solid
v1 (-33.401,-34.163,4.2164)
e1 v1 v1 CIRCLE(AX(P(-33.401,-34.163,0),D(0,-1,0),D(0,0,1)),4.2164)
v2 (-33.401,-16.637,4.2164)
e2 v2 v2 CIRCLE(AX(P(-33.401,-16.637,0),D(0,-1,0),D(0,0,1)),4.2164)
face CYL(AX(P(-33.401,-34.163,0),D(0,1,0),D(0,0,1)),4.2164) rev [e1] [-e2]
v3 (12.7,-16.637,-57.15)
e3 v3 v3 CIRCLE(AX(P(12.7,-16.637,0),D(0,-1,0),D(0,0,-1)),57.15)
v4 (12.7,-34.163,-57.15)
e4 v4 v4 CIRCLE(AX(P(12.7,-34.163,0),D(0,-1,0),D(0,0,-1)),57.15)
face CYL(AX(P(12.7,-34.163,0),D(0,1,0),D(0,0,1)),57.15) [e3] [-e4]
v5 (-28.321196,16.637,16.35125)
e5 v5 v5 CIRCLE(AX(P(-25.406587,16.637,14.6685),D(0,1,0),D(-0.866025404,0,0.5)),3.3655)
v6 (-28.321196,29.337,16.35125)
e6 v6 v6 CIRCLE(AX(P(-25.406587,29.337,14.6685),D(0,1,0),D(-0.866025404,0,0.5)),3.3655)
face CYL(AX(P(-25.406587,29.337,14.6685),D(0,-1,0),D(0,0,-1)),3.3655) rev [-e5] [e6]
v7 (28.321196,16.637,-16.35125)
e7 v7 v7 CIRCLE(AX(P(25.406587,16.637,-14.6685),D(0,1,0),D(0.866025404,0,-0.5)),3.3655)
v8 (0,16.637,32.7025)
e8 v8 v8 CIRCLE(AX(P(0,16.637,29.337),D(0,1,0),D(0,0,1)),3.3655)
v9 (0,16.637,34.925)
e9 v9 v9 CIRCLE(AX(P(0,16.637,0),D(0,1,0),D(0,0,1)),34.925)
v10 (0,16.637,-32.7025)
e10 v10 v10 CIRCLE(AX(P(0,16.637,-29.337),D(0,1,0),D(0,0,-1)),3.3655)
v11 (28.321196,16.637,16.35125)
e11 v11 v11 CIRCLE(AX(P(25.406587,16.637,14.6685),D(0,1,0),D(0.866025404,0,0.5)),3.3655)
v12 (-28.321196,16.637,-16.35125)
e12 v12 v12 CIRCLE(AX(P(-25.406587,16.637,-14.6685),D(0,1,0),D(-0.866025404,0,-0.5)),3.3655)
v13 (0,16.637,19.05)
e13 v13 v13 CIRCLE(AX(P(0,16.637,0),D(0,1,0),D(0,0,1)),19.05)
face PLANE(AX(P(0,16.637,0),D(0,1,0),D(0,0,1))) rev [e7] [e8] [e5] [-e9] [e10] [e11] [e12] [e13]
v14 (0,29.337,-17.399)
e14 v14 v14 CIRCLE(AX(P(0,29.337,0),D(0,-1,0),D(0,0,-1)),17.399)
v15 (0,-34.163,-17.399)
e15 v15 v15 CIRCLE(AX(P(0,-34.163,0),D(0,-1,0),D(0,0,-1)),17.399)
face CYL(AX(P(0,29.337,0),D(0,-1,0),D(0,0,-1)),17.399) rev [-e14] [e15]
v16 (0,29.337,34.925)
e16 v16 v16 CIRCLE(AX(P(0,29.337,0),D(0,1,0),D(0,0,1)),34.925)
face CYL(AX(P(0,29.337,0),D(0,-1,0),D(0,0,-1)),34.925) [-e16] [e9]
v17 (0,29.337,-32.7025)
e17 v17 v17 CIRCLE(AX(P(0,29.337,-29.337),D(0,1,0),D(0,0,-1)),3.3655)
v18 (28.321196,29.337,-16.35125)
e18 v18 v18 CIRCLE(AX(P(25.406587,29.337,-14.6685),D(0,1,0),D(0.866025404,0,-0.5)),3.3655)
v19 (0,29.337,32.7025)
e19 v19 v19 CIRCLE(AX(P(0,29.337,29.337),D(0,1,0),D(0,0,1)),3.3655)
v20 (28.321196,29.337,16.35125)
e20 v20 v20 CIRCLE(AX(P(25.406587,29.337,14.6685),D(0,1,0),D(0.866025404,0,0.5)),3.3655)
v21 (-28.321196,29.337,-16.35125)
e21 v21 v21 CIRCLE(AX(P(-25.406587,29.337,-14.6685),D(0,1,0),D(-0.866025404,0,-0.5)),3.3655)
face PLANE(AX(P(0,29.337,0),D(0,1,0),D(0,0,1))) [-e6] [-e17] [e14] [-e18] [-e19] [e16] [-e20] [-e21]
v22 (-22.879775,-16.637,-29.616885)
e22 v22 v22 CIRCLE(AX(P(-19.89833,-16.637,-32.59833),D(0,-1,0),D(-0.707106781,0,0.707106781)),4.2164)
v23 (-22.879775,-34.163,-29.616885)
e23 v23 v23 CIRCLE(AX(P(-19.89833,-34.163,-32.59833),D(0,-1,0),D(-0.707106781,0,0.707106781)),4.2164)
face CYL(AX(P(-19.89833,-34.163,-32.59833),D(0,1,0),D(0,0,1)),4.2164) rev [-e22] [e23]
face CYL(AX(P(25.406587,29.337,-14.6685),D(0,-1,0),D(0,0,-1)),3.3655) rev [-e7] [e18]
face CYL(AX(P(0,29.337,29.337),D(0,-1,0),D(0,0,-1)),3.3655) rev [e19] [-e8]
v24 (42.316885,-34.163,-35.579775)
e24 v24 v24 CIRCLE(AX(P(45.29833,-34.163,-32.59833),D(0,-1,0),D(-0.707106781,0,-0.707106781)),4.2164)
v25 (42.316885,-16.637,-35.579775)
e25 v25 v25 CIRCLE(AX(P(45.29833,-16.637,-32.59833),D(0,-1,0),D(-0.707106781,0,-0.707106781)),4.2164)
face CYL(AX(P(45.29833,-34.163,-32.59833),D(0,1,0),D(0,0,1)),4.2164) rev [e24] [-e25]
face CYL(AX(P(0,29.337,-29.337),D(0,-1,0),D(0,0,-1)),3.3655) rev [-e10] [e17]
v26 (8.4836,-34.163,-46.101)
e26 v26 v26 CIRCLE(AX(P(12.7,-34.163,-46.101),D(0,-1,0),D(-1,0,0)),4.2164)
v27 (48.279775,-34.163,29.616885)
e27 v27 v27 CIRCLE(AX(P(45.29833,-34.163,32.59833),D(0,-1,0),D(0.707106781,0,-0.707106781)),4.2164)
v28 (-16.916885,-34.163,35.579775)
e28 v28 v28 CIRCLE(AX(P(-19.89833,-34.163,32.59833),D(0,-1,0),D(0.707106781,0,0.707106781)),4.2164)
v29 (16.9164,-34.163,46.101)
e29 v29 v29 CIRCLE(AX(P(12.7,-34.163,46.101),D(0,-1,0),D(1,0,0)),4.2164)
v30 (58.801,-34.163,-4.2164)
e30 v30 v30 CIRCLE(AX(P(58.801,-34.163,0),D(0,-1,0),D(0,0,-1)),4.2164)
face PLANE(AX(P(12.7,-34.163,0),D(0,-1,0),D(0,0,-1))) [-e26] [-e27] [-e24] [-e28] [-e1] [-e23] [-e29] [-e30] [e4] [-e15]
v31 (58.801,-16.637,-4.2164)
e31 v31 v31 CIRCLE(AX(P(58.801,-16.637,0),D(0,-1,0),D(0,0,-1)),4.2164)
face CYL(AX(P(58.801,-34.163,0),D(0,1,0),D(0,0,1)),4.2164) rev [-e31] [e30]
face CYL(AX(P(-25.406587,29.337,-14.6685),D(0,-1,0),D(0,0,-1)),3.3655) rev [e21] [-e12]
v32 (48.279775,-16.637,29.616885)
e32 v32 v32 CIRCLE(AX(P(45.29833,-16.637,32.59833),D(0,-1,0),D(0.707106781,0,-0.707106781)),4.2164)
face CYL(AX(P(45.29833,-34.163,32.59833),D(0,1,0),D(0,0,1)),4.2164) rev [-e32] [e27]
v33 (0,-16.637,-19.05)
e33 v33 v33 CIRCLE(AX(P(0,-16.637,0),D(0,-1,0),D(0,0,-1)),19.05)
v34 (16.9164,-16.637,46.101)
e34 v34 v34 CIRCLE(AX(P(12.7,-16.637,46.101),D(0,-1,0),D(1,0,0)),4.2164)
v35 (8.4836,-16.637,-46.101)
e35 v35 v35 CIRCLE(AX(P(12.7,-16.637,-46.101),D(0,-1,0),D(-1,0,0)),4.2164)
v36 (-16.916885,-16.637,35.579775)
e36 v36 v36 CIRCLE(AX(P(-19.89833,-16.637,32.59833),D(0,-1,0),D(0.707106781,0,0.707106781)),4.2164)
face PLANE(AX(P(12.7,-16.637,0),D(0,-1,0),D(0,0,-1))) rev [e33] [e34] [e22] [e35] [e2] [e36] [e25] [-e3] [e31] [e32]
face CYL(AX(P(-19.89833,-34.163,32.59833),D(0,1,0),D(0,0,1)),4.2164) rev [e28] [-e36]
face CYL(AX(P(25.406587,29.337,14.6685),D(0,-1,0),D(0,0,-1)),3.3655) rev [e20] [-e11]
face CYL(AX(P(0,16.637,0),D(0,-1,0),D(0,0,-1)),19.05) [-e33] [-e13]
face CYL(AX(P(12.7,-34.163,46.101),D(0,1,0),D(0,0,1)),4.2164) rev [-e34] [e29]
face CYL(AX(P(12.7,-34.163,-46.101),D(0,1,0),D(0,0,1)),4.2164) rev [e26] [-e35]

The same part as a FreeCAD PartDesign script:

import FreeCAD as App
import Part
import Sketcher
from FreeCAD import Vector
Q = App.Units.Quantity

doc = App.newDocument("Part")
body = doc.addObject("PartDesign::Body", "Body")

sketch1 = body.newObject("Sketcher::SketchObject", "Sketch")
sketch1.AttachmentSupport = (doc.getObject("XZ_Plane"), [""])
sketch1.MapMode = "FlatFace"
sketch1.addGeometry(Part.Circle(Vector(0, 0, 0), Vector(0, 0, 1), 19), False)
sketch1.addConstraint(Sketcher.Constraint("Coincident", 0, 3, -1, 1))
sketch1.addConstraint(Sketcher.Constraint("Diameter", 0, Q("1.5 in")))
pad1 = body.newObject("PartDesign::Pad", "Pad")
pad1.Profile = sketch1
pad1.Length = Q("1.31 in")
pad1.Midplane = True

sketch2 = body.newObject("Sketcher::SketchObject", "Sketch001")
sketch2.AttachmentSupport = (doc.getObject("XZ_Plane"), [""])
sketch2.MapMode = "FlatFace"
sketch2.AttachmentOffset = App.Placement(Vector(0, 0, -0.655 * 25.4), App.Rotation())
sketch2.addGeometry(Part.Circle(Vector(0, 0, 0), Vector(0, 0, 1), 35), False)
sketch2.addConstraint(Sketcher.Constraint("Coincident", 0, 3, -1, 1))
sketch2.addConstraint(Sketcher.Constraint("Diameter", 0, Q("2.75 in")))
pad2 = body.newObject("PartDesign::Pad", "Pad001")
pad2.Profile = sketch2
pad2.Length = Q("0.5 in")
pad2.Reversed = True

sketch3 = body.newObject("Sketcher::SketchObject", "Sketch002")
sketch3.AttachmentSupport = (doc.getObject("XZ_Plane"), [""])
sketch3.MapMode = "FlatFace"
sketch3.AttachmentOffset = App.Placement(Vector(0, 0, 0.655 * 25.4), App.Rotation())
sketch3.addGeometry(Part.Circle(Vector(13, 0, 0), Vector(0, 0, 1), 57), False)
sketch3.addConstraint(Sketcher.Constraint("PointOnObject", 0, 3, -1))
sketch3.addConstraint(Sketcher.Constraint("Diameter", 0, Q("4.5 in")))
sketch3.addConstraint(Sketcher.Constraint("DistanceX", -1, 1, 0, 3, Q("0.5 in")))
pad3 = body.newObject("PartDesign::Pad", "Pad002")
pad3.Profile = sketch3
pad3.Length = Q("0.69 in")

sketch4 = body.newObject("Sketcher::SketchObject", "Sketch003")
sketch4.AttachmentSupport = (doc.getObject("XZ_Plane"), [""])
sketch4.MapMode = "FlatFace"
sketch4.AttachmentOffset = App.Placement(Vector(0, 0, 0.655 * 25.4), App.Rotation())
sketch4.addGeometry(Part.Circle(Vector(0, 0, 0), Vector(0, 0, 1), 17), False)
sketch4.addConstraint(Sketcher.Constraint("Coincident", 0, 3, -1, 1))
sketch4.addConstraint(Sketcher.Constraint("Diameter", 0, Q("1.37 in")))
pocket1 = body.newObject("PartDesign::Pocket", "Pocket")
pocket1.Profile = sketch4
pocket1.Type = "ThroughAll"
pocket1.Midplane = True

sketch5 = body.newObject("Sketcher::SketchObject", "Sketch004")
sketch5.AttachmentSupport = (doc.getObject("XZ_Plane"), [""])
sketch5.MapMode = "FlatFace"
sketch5.AttachmentOffset = App.Placement(Vector(0, 0, -0.655 * 25.4), App.Rotation())
sketch5.addGeometry(Part.Circle(Vector(0, 29.3, 0), Vector(0, 0, 1), 3.4), False)
sketch5.addConstraint(Sketcher.Constraint("PointOnObject", 0, 3, -2))
sketch5.addConstraint(Sketcher.Constraint("Diameter", 0, Q("0.265 in")))
sketch5.addConstraint(Sketcher.Constraint("DistanceY", -1, 1, 0, 3, Q("1.155 in")))
pocket2 = body.newObject("PartDesign::Pocket", "Pocket001")
pocket2.Profile = sketch5
pocket2.Length = Q("0.5 in")
doc.recompute()

polarpattern = body.newObject("PartDesign::PolarPattern", "PolarPattern")
polarpattern.Originals = [pocket2]
polarpattern.Axis = (doc.getObject("Y_Axis"), [""])
polarpattern.Angle = 360
polarpattern.Occurrences = 6
body.Tip = polarpattern

sketch6 = body.newObject("Sketcher::SketchObject", "Sketch005")
sketch6.AttachmentSupport = (doc.getObject("XZ_Plane"), [""])
sketch6.MapMode = "FlatFace"
sketch6.AttachmentOffset = App.Placement(Vector(0, 0, 0.655 * 25.4), App.Rotation())
sketch6.addGeometry(Part.Circle(Vector(12.7, 46.1, 0), Vector(0, 0, 1), 4.2), False)
sketch6.addConstraint(Sketcher.Constraint("Diameter", 0, Q("0.332 in")))
sketch6.addConstraint(Sketcher.Constraint("DistanceX", -1, 1, 0, 3, Q("0.5 in")))
sketch6.addConstraint(Sketcher.Constraint("DistanceY", -1, 1, 0, 3, Q("1.815 in")))
pocket3 = body.newObject("PartDesign::Pocket", "Pocket002")
pocket3.Profile = sketch6
pocket3.Length = Q("0.69 in")
pocket3.Reversed = True
doc.recompute()

datumline = body.newObject("PartDesign::Line", "DatumLine")
datumline.Placement = App.Placement(Vector(12.7, 0, 0), App.Rotation(Vector(0, 0, 1), Vector(0, 1, 0)))
polarpattern2 = body.newObject("PartDesign::PolarPattern", "PolarPattern001")
polarpattern2.Originals = [pocket3]
polarpattern2.Axis = (datumline, [""])
polarpattern2.Angle = 360
polarpattern2.Occurrences = 8
body.Tip = polarpattern2

doc.recompute()
